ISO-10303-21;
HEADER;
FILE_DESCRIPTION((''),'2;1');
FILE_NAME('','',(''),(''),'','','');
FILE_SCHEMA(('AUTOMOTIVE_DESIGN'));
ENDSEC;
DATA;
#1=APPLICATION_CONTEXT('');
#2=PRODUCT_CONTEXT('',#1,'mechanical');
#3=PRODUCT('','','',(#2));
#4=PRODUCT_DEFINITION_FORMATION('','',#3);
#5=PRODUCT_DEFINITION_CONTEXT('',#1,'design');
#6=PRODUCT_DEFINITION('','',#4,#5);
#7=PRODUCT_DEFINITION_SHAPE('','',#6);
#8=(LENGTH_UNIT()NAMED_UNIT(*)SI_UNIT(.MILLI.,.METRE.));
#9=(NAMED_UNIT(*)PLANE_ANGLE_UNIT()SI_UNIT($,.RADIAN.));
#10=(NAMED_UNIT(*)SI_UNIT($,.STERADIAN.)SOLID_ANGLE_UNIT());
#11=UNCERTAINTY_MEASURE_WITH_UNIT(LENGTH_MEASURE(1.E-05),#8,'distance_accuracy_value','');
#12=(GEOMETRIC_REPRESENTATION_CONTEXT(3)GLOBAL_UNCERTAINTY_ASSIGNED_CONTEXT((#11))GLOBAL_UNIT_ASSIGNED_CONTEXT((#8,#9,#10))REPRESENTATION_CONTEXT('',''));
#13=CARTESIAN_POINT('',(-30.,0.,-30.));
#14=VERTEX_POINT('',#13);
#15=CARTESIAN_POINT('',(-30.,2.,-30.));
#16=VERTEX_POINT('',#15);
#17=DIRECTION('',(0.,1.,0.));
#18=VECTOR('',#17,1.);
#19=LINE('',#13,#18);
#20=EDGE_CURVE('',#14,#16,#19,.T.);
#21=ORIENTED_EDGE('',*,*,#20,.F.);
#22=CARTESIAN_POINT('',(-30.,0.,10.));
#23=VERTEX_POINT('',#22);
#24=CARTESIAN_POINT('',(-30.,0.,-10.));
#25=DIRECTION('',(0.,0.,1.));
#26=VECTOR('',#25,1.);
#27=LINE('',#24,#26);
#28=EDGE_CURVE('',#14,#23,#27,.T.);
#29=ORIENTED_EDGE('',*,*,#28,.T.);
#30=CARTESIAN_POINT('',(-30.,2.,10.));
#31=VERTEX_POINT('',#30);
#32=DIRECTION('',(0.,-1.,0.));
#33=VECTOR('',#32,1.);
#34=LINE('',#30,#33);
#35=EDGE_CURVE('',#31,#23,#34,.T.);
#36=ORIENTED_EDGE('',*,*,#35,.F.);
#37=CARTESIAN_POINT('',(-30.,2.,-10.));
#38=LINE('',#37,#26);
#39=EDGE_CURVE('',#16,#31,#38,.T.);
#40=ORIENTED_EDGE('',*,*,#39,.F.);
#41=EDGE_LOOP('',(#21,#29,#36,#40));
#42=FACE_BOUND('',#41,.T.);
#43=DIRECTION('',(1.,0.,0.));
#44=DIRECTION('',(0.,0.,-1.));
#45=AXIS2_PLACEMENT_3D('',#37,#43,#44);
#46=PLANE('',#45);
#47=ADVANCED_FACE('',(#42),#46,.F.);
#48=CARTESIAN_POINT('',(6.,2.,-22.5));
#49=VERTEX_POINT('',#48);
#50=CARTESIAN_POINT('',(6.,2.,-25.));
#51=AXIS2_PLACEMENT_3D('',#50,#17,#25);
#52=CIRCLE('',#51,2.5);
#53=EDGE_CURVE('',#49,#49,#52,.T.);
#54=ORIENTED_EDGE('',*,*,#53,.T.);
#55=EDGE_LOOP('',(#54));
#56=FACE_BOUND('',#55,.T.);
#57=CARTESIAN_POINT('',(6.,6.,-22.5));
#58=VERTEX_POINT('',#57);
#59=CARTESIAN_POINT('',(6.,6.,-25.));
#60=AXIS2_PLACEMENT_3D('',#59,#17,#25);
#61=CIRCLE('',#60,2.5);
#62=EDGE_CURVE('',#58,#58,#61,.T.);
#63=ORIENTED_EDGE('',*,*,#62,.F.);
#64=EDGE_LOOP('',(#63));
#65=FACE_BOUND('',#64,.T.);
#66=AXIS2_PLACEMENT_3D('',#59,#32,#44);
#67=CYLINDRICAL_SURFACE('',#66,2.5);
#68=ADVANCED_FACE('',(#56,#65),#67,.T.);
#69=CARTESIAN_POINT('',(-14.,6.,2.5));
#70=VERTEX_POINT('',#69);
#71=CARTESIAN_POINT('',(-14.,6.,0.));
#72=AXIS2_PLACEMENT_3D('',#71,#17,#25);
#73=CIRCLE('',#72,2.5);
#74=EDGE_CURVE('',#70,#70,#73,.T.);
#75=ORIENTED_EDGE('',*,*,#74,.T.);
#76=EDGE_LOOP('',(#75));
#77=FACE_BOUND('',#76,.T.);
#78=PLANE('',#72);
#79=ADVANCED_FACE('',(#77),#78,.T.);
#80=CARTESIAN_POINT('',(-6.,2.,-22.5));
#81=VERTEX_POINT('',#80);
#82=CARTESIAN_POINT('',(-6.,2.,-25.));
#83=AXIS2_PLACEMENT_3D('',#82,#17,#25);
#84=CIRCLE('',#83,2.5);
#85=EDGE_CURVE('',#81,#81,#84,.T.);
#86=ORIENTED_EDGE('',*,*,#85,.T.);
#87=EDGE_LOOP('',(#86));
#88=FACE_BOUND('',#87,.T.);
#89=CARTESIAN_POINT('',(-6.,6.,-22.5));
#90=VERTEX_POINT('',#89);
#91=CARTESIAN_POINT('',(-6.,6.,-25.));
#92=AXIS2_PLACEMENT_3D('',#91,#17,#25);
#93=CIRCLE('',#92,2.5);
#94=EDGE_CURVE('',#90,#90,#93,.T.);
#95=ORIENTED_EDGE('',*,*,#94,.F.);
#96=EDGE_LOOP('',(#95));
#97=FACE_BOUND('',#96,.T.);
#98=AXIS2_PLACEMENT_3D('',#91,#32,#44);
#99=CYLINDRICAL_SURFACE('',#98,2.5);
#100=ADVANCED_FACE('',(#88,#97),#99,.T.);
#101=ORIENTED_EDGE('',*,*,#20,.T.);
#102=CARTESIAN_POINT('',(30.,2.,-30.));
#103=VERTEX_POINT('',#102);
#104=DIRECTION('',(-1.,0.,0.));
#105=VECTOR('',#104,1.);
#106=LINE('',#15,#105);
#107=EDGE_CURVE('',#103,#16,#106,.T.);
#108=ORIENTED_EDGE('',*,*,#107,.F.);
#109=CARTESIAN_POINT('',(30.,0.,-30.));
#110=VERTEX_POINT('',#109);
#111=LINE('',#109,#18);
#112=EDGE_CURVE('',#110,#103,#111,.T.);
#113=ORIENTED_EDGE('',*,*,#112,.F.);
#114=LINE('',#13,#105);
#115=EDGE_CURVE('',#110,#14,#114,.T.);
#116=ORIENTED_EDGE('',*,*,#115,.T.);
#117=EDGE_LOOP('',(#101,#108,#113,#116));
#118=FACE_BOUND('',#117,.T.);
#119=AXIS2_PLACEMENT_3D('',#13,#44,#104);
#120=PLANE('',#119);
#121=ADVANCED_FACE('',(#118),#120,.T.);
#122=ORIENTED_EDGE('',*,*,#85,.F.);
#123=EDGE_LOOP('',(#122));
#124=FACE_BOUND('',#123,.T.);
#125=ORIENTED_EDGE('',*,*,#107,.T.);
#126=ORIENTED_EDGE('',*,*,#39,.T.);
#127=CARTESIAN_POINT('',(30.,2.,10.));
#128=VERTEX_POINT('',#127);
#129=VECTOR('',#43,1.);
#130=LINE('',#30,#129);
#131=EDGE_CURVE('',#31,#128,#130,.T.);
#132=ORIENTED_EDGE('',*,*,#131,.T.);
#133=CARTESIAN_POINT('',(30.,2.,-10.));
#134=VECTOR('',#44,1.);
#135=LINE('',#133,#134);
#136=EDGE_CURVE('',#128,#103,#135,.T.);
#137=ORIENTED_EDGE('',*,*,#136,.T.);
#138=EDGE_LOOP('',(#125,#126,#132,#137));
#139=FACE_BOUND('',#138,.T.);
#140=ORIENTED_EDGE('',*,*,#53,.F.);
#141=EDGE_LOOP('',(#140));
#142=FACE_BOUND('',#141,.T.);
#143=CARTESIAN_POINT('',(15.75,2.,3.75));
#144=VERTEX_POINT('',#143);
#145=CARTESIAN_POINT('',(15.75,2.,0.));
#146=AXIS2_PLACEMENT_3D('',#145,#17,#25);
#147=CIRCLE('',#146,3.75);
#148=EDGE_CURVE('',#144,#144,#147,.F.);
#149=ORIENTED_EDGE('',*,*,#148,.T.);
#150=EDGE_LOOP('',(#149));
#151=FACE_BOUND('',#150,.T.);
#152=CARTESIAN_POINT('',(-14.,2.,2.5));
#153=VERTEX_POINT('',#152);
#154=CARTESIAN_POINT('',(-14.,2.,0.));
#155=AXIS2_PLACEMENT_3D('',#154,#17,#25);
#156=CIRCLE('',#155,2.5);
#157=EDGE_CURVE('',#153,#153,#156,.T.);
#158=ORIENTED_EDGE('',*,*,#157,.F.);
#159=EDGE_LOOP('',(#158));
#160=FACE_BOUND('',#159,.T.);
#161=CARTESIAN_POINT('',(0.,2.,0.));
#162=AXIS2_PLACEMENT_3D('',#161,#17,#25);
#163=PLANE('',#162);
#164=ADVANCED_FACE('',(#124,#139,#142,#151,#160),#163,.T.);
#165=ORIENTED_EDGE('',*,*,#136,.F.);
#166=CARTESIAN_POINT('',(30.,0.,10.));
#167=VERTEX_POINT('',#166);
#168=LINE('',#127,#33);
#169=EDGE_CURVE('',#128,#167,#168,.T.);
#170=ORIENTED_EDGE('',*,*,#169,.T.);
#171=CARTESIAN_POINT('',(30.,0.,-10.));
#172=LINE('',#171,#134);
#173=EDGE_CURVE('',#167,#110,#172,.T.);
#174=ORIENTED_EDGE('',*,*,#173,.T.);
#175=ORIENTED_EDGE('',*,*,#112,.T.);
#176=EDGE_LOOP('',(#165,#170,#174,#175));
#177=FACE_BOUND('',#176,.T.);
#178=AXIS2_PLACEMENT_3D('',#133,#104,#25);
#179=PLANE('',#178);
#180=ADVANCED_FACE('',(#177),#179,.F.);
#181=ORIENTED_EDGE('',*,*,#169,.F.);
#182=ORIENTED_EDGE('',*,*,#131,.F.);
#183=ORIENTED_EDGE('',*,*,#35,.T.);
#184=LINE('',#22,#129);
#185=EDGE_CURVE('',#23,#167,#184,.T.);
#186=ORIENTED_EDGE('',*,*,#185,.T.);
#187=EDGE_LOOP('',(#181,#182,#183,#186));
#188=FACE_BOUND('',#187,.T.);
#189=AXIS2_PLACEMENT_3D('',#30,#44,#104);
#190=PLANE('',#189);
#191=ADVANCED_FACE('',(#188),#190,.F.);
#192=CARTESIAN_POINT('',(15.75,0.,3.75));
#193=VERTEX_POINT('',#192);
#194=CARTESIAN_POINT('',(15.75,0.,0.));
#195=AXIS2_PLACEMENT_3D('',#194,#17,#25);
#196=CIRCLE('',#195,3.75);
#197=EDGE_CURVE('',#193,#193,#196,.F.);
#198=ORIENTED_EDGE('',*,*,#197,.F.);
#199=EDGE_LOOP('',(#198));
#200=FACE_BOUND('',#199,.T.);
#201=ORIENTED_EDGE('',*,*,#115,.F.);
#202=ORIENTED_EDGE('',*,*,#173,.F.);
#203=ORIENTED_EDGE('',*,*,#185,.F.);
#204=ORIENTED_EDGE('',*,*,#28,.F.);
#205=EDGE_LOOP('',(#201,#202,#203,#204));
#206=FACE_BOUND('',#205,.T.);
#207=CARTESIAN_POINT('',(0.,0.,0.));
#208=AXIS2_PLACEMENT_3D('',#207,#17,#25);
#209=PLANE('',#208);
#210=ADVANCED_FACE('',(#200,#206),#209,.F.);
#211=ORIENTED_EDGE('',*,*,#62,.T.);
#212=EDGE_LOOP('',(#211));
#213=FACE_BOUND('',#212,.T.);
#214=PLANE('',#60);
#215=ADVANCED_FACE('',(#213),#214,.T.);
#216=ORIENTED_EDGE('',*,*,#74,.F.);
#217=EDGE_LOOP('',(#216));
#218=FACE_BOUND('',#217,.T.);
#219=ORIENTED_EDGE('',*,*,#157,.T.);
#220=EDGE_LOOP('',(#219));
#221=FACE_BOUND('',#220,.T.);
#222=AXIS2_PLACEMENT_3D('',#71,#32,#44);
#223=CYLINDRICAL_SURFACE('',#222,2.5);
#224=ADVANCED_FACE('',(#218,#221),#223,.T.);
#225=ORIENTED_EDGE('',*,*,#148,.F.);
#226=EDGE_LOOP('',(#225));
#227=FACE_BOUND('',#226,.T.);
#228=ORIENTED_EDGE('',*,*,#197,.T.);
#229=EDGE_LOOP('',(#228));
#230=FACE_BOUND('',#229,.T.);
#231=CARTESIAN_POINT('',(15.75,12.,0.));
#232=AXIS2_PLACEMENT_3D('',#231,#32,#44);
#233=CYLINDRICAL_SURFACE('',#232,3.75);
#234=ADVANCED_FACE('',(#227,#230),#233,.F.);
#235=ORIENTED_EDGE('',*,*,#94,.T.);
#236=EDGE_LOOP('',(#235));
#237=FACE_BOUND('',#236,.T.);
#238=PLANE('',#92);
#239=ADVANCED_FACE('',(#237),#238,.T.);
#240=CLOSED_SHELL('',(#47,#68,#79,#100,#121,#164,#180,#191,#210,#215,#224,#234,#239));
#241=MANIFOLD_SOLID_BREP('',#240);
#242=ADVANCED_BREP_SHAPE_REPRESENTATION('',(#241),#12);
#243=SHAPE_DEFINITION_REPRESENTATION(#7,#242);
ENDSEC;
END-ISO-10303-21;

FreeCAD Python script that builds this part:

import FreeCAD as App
import Part
import Sketcher
from FreeCAD import Vector


def add_polygon(sketch, points):
    """Adds a closed chain of lines whose ends are joined by coincident constraints."""
    first, n = sketch.GeometryCount, len(points)
    for a, b in zip(points, points[1:] + points[:1]):
        sketch.addGeometry(Part.LineSegment(App.Vector(*a, 0), App.Vector(*b, 0)), False)
    for i in range(n):
        sketch.addConstraint(Sketcher.Constraint("Coincident", first + i, 2, first + (i + 1) % n, 1))

doc = App.newDocument("Part")
body = doc.addObject("PartDesign::Body", "Body")

sketch1 = body.newObject("Sketcher::SketchObject", "Sketch")
sketch1.AttachmentSupport = (doc.getObject("XZ_Plane"), [""])
sketch1.MapMode = "FlatFace"
add_polygon(sketch1, [(-30, -10), (-30, 10), (30, 10), (30, -10)])
sketch1.addConstraint(Sketcher.Constraint("Vertical", 0))
sketch1.addConstraint(Sketcher.Constraint("Horizontal", 1))
sketch1.addConstraint(Sketcher.Constraint("Vertical", 2))
sketch1.addConstraint(Sketcher.Constraint("Horizontal", 3))
sketch1.addConstraint(Sketcher.Constraint("Symmetric", 0, 2, 2, 2, -1, 1))
sketch1.addConstraint(Sketcher.Constraint("DistanceX", 1, 1, 1, 2, 60.0))
sketch1.addConstraint(Sketcher.Constraint("DistanceY", 0, 1, 0, 2, 20.0))
pad1 = body.newObject("PartDesign::Pad", "Pad")
pad1.Profile = sketch1
pad1.Length = 2
pad1.Reversed = True

sketch2 = body.newObject("Sketcher::SketchObject", "Sketch001")
sketch2.AttachmentSupport = (doc.getObject("XZ_Plane"), [""])
sketch2.MapMode = "FlatFace"
sketch2.AttachmentOffset = App.Placement(Vector(0, 0, -2), App.Rotation())
sketch2.addGeometry(Part.Circle(Vector(-14, 0, 0), Vector(0, 0, 1), 2.5), False)
sketch2.addConstraint(Sketcher.Constraint("PointOnObject", 0, 3, -1))
sketch2.addConstraint(Sketcher.Constraint("Diameter", 0, 5.0))
sketch2.addConstraint(Sketcher.Constraint("DistanceX", 0, 3, -1, 1, 14.0))
pad2 = body.newObject("PartDesign::Pad", "Pad001")
pad2.Profile = sketch2
pad2.Length = 4
pad2.Reversed = True

sketch3 = body.newObject("Sketcher::SketchObject", "Sketch002")
sketch3.AttachmentSupport = (doc.getObject("XZ_Plane"), [""])
sketch3.MapMode = "FlatFace"
sketch3.AttachmentOffset = App.Placement(Vector(0, 0, -2), App.Rotation())
sketch3.addGeometry(Part.Circle(Vector(15.75, 0, 0), Vector(0, 0, 1), 1), False)
sketch3.addConstraint(Sketcher.Constraint("PointOnObject", 0, 3, -1))
sketch3.addConstraint(Sketcher.Constraint("Diameter", 0, 2.0))
sketch3.addConstraint(Sketcher.Constraint("DistanceX", -1, 1, 0, 3, 15.75))
pad3 = body.newObject("PartDesign::Pad", "Pad002")
pad3.Profile = sketch3
pad3.Length = 4
pad3.Reversed = True

sketch4 = body.newObject("Sketcher::SketchObject", "Sketch003")
sketch4.AttachmentSupport = (doc.getObject("XZ_Plane"), [""])
sketch4.MapMode = "FlatFace"
sketch4.AttachmentOffset = App.Placement(Vector(0, 0, -2), App.Rotation())
sketch4.addGeometry(Part.Circle(Vector(15.75, 0, 0), Vector(0, 0, 1), 3.75), False)
sketch4.addConstraint(Sketcher.Constraint("PointOnObject", 0, 3, -1))
sketch4.addConstraint(Sketcher.Constraint("Diameter", 0, 7.5))
sketch4.addConstraint(Sketcher.Constraint("DistanceX", -1, 1, 0, 3, 15.75))
pocket1 = body.newObject("PartDesign::Pocket", "Pocket")
pocket1.Profile = sketch4
pocket1.Type = "ThroughAll"
pocket1.Midplane = True

sketch5 = body.newObject("Sketcher::SketchObject", "Sketch004")
sketch5.AttachmentSupport = (doc.getObject("XZ_Plane"), [""])
sketch5.MapMode = "FlatFace"
sketch5.AttachmentOffset = App.Placement(Vector(0, 0, -2), App.Rotation())
add_polygon(sketch5, [(-30, -30), (-30, -10), (30, -10), (30, -30)])
sketch5.addConstraint(Sketcher.Constraint("Vertical", 0))
sketch5.addConstraint(Sketcher.Constraint("Horizontal", 1))
sketch5.addConstraint(Sketcher.Constraint("Vertical", 2))
sketch5.addConstraint(Sketcher.Constraint("Horizontal", 3))
sketch5.addConstraint(Sketcher.Constraint("DistanceX", 1, 1, 1, 2, 60.0))
sketch5.addConstraint(Sketcher.Constraint("DistanceY", 0, 1, 0, 2, 20.0))
sketch5.addConstraint(Sketcher.Constraint("DistanceX", 0, 2, -1, 1, 30.0))
sketch5.addConstraint(Sketcher.Constraint("DistanceY", 0, 2, -1, 1, 10.0))
pad4 = body.newObject("PartDesign::Pad", "Pad003")
pad4.Profile = sketch5
pad4.Length = 2

sketch6 = body.newObject("Sketcher::SketchObject", "Sketch005")
sketch6.AttachmentSupport = (doc.getObject("XZ_Plane"), [""])
sketch6.MapMode = "FlatFace"
sketch6.AttachmentOffset = App.Placement(Vector(0, 0, -2), App.Rotation())
sketch6.addGeometry(Part.Circle(Vector(-6, -25, 0), Vector(0, 0, 1), 2.5), False)
sketch6.addGeometry(Part.Circle(Vector(6, -25, 0), Vector(0, 0, 1), 2.5), False)
sketch6.addConstraint(Sketcher.Constraint("Equal", 0, 1))
sketch6.addConstraint(Sketcher.Constraint("Symmetric", 0, 3, 1, 3, -2))
sketch6.addConstraint(Sketcher.Constraint("Diameter", 0, 5.0))
sketch6.addConstraint(Sketcher.Constraint("DistanceX", 0, 3, -1, 1, 6.0))
sketch6.addConstraint(Sketcher.Constraint("DistanceY", 0, 3, -1, 1, 25.0))
pad5 = body.newObject("PartDesign::Pad", "Pad004")
pad5.Profile = sketch6
pad5.Length = 4
pad5.Reversed = True

doc.recompute()
